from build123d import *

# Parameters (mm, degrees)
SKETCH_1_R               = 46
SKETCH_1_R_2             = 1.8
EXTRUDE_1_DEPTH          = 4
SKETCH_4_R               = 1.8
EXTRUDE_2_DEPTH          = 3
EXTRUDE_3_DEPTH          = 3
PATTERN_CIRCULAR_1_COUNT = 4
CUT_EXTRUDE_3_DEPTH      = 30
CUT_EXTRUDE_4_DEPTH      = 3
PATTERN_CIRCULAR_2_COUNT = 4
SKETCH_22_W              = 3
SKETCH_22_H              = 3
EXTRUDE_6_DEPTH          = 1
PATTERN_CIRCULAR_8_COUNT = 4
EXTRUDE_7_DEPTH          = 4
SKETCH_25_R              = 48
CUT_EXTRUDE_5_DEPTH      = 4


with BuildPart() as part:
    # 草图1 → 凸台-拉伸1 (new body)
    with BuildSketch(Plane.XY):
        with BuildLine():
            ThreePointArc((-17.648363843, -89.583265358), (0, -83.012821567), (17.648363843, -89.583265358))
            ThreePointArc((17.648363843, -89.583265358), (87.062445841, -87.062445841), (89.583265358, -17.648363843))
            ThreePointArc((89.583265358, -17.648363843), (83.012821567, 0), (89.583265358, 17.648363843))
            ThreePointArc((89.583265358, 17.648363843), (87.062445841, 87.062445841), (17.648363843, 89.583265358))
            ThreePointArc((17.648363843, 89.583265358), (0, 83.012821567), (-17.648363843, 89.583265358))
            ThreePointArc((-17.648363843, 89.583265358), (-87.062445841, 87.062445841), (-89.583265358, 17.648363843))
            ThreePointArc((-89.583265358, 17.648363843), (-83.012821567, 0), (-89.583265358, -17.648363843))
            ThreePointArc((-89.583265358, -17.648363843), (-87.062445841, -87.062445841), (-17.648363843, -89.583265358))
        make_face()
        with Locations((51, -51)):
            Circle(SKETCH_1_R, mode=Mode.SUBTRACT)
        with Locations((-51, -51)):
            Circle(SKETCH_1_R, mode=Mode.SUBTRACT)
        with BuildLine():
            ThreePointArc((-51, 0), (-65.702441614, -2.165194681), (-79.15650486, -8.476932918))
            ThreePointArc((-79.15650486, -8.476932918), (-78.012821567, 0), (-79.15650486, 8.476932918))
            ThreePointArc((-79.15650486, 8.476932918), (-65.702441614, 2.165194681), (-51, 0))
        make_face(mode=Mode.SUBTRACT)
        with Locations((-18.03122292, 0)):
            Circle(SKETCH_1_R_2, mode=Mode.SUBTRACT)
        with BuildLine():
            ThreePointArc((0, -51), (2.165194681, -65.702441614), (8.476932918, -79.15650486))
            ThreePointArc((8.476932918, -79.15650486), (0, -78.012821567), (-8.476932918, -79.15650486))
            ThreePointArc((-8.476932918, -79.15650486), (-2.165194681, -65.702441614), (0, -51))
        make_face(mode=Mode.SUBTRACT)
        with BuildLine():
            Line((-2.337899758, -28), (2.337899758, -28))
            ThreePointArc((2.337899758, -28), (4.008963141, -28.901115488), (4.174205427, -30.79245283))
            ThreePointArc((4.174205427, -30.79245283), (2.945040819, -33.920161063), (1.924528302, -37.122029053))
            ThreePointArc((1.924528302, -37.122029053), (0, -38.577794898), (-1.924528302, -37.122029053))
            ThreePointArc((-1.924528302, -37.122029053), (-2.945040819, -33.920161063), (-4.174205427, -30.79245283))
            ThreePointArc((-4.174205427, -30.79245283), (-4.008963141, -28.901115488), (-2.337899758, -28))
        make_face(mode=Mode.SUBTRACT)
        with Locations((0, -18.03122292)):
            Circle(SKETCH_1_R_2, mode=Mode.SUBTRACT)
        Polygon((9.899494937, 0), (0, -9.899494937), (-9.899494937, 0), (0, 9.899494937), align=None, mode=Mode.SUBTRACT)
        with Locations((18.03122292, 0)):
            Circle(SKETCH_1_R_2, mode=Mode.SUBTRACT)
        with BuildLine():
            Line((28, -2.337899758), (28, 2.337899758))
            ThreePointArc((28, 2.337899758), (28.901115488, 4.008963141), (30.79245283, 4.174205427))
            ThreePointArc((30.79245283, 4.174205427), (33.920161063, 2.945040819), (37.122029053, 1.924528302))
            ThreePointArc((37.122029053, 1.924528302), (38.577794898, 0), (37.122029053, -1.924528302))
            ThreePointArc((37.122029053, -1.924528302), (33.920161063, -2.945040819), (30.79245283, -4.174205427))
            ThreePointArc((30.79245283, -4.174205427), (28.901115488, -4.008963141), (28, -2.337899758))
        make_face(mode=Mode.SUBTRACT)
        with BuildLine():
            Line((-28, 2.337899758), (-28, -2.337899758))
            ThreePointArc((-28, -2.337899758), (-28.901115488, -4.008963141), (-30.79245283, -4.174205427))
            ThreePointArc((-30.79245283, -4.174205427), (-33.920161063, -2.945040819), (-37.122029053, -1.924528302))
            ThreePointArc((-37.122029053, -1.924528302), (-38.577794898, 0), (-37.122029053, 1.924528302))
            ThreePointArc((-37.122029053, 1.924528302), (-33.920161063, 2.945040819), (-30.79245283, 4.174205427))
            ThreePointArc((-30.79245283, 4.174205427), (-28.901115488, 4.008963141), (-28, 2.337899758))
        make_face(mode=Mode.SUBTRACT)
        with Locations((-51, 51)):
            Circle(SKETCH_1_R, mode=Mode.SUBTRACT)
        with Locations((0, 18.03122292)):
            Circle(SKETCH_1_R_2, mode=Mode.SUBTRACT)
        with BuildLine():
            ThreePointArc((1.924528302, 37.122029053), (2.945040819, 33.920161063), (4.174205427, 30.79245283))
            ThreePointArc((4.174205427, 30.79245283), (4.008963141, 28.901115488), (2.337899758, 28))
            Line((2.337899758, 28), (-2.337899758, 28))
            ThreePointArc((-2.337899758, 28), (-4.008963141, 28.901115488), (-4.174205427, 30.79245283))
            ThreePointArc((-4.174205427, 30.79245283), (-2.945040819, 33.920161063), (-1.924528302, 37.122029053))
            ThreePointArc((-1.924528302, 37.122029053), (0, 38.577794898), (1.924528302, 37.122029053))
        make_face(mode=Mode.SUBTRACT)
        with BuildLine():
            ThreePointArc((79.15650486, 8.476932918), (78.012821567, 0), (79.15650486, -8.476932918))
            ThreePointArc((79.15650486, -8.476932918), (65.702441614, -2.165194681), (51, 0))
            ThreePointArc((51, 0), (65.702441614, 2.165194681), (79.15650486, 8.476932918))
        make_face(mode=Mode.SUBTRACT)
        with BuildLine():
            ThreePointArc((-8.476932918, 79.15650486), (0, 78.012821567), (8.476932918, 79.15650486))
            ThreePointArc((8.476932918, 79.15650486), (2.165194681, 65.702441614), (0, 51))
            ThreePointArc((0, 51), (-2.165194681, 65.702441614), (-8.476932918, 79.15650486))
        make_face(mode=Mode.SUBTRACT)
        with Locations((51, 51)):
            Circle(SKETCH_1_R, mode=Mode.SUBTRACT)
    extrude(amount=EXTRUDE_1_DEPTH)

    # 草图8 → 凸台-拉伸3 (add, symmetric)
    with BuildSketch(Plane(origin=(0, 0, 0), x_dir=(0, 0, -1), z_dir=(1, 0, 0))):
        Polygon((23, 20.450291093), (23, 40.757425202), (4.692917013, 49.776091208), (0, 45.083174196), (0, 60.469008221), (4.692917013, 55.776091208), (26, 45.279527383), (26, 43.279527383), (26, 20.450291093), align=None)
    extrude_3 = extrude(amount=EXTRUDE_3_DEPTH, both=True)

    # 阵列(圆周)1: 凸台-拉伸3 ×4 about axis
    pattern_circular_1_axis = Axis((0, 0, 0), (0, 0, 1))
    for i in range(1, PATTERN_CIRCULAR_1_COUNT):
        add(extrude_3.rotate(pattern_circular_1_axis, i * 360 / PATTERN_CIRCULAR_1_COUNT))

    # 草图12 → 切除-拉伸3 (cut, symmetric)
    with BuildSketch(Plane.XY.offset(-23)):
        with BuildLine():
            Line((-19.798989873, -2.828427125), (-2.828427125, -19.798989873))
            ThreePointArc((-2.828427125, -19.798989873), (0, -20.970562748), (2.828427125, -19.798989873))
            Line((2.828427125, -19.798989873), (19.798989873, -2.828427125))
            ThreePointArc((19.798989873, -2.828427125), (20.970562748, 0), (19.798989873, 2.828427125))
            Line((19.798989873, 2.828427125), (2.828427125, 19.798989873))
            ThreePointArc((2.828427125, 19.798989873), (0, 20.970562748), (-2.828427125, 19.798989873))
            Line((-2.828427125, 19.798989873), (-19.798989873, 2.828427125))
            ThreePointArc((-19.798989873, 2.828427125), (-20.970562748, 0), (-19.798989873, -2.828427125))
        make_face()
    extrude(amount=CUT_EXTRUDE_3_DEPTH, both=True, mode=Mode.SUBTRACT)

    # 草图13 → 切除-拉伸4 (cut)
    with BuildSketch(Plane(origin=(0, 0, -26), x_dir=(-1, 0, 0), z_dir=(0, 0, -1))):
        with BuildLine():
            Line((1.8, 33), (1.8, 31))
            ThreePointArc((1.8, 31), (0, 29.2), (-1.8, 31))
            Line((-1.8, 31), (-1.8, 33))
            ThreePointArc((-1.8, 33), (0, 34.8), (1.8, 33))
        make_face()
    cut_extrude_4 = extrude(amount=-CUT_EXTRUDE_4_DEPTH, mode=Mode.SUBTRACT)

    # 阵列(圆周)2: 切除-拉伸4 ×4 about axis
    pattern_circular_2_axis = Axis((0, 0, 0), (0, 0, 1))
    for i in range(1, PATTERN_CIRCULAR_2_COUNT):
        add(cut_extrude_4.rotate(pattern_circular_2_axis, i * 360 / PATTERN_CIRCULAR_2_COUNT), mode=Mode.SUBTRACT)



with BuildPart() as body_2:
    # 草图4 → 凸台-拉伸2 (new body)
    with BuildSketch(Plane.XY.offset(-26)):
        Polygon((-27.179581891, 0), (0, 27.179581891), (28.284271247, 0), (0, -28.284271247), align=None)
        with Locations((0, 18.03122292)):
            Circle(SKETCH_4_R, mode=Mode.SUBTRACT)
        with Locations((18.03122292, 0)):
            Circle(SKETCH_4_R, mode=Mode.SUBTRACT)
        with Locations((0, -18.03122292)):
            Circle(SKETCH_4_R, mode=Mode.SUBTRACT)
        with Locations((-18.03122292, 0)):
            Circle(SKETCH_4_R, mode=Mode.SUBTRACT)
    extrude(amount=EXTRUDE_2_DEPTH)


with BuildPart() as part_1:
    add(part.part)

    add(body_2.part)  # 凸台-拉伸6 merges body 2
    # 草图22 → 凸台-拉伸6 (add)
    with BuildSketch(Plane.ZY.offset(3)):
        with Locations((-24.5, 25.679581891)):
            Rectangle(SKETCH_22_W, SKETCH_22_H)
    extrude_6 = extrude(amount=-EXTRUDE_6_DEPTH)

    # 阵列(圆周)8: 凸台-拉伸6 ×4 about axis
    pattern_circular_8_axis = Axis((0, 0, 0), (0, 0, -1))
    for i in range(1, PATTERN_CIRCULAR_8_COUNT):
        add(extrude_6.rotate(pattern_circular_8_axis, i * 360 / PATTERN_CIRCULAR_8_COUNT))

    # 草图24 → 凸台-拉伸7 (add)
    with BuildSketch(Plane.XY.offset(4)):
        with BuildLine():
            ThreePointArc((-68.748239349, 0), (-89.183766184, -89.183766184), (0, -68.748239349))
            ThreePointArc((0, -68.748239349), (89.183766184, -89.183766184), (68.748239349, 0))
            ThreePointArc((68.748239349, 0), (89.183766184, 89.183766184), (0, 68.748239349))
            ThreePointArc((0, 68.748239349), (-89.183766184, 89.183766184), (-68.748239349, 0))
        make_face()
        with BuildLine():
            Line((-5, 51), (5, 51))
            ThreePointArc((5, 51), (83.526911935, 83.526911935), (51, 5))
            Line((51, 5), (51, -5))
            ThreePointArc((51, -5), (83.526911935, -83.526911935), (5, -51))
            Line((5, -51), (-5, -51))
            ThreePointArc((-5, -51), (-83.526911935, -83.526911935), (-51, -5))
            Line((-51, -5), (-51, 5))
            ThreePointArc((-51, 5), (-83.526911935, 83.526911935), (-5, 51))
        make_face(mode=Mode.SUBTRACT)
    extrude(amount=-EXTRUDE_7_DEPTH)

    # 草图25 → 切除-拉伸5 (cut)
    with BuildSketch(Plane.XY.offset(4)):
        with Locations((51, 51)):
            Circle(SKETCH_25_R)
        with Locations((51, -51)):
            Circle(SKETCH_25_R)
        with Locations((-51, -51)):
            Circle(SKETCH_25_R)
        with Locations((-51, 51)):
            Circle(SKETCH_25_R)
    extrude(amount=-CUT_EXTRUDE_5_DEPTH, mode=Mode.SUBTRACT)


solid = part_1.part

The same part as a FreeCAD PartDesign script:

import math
import FreeCAD as App
import Part
import Sketcher
from FreeCAD import Vector
Q = App.Units.Quantity


def add_polygon(sketch, points):
    """Adds a closed chain of lines whose ends are joined by coincident constraints."""
    first, n = sketch.GeometryCount, len(points)
    for a, b in zip(points, points[1:] + points[:1]):
        sketch.addGeometry(Part.LineSegment(App.Vector(*a, 0), App.Vector(*b, 0)), False)
    for i in range(n):
        sketch.addConstraint(Sketcher.Constraint("Coincident", first + i, 2, first + (i + 1) % n, 1))

doc = App.newDocument("Part")
params = doc.addObject("Spreadsheet::Sheet", "Params")
for row, (alias, value) in enumerate([
    ("sketch1_diameter", "92 mm"),
    ("sketch1_radius", "51 mm"),
    ("sketch1_radius2", "2 mm"),
    ("sketch1_diameter2", "3.6 mm"),
    ("sketch1_length", "14 mm"),
    ("pad1_length", "4 mm"),
    ("sketch2_height", "3 mm"),
    ("pad2_length", "6 mm"),
    ("sketch3_radius", "4 mm"),
    ("sketch3_length", "24 mm"),
    ("pocket1_length", "60 mm"),
    ("sketch4_radius", "1.8 mm"),
    ("sketch4_height", "2 mm"),
    ("pocket2_length", "3 mm"),
    ("sketch5_diameter", "3.6 mm"),
    ("sketch5_length", "40 mm"),
    ("pad3_length", "3 mm"),
    ("sketch6_width", "3 mm"),
    ("pad4_length", "1 mm"),
    ("sketch7_radius", "54 mm"),
    ("sketch7_radius2", "46 mm"),
    ("sketch7_width", "10 mm"),
    ("pad5_length", "4 mm"),
    ("sketch8_diameter", "96 mm"),
    ("pocket3_length", "4 mm"),
], start=1):
    params.set(f"A{row}", alias)
    params.set(f"B{row}", "=" + value)
    params.setAlias(f"B{row}", alias)

body = doc.addObject("PartDesign::Body", "Body")

# Sketch on XY plane
sketch1 = body.newObject("Sketcher::SketchObject", "Sketch")
sketch1.AttachmentSupport = (doc.getObject("XY_Plane"), [""])
sketch1.MapMode = "FlatFace"
sketch1.addGeometry(Part.ArcOfCircle(Part.Circle(Vector(0, -110, 0), Vector(0, 0, 1), 27), math.radians(49), math.radians(131)), False)  # 0
sketch1.addGeometry(Part.ArcOfCircle(Part.Circle(Vector(51, -51, 0), Vector(0, 0, 1), 51), math.radians(-131), math.radians(41)), False)  # 1
sketch1.addGeometry(Part.ArcOfCircle(Part.Circle(Vector(110, 0, 0), Vector(0, 0, 1), 27), math.radians(139), math.radians(221)), False)  # 2
sketch1.addGeometry(Part.ArcOfCircle(Part.Circle(Vector(51, 51, 0), Vector(0, 0, 1), 51), math.radians(-41), math.radians(131)), False)  # 3
sketch1.addGeometry(Part.ArcOfCircle(Part.Circle(Vector(0, 110, 0), Vector(0, 0, 1), 27), math.radians(-131), math.radians(-49)), False)  # 4
sketch1.addGeometry(Part.ArcOfCircle(Part.Circle(Vector(-51, 51, 0), Vector(0, 0, 1), 51), math.radians(49), math.radians(221)), False)  # 5
sketch1.addGeometry(Part.ArcOfCircle(Part.Circle(Vector(-110, 0, 0), Vector(0, 0, 1), 27), math.radians(-41), math.radians(41)), False)  # 6
sketch1.addGeometry(Part.ArcOfCircle(Part.Circle(Vector(-51, -51, 0), Vector(0, 0, 1), 51), math.radians(139), math.radians(311)), False)  # 7
sketch1.addGeometry(Part.Circle(Vector(-51, -51, 0), Vector(0, 0, 1), 46), False)  # 8
sketch1.addGeometry(Part.ArcOfCircle(Part.Circle(Vector(-51, -51, 0), Vector(0, 0, 1), 51), math.radians(-34), math.radians(0)), False)  # 9
sketch1.addGeometry(Part.ArcOfCircle(Part.Circle(Vector(51, -51, 0), Vector(0, 0, 1), 51), math.radians(-180), math.radians(-146)), False)  # 10
sketch1.addGeometry(Part.ArcOfCircle(Part.Circle(Vector(0, -110, 0), Vector(0, 0, 1), 32), math.radians(75), math.radians(105)), False)  # 11
sketch1.addGeometry(Part.Circle(Vector(51, -51, 0), Vector(0, 0, 1), 46), False)  # 12
sketch1.addGeometry(Part.ArcOfCircle(Part.Circle(Vector(-2.3, -30, 0), Vector(0, 0, 1), 2), math.radians(90), math.radians(203)), False)  # 13
sketch1.addGeometry(Part.LineSegment(Vector(-2.3, -28, 0), Vector(2.3, -28, 0)), False)  # 14
sketch1.addGeometry(Part.ArcOfCircle(Part.Circle(Vector(2.3, -30, 0), Vector(0, 0, 1), 2), math.radians(-23), math.radians(90)), False)  # 15
sketch1.addGeometry(Part.ArcOfCircle(Part.Circle(Vector(51, -51, 0), Vector(0, 0, 1), 51), math.radians(156.66), math.radians(164.21)), False)  # 16
sketch1.addGeometry(Part.ArcOfCircle(Part.Circle(Vector(0, -36.6, 0), Vector(0, 0, 1), 2), math.radians(-164), math.radians(-16)), False)  # 17
sketch1.addGeometry(Part.ArcOfCircle(Part.Circle(Vector(-51, -51, 0), Vector(0, 0, 1), 51), math.radians(15.79), math.radians(23.34)), False)  # 18
sketch1.addGeometry(Part.Circle(Vector(0, -18, 0), Vector(0, 0, 1), 1.8), False)  # 19
sketch1.addGeometry(Part.ArcOfCircle(Part.Circle(Vector(-51, 51, 0), Vector(0, 0, 1), 51), math.radians(-124), math.radians(-90)), False)  # 20
sketch1.addGeometry(Part.ArcOfCircle(Part.Circle(Vector(-51, -51, 0), Vector(0, 0, 1), 51), math.radians(90), math.radians(124)), False)  # 21
sketch1.addGeometry(Part.ArcOfCircle(Part.Circle(Vector(-110, 0, 0), Vector(0, 0, 1), 32), math.radians(-15), math.radians(15)), False)  # 22
sketch1.addGeometry(Part.ArcOfCircle(Part.Circle(Vector(-30, 2.3, 0), Vector(0, 0, 1), 2), math.radians(0), math.radians(113)), False)  # 23
sketch1.addGeometry(Part.LineSegment(Vector(-28, 2.3, 0), Vector(-28, -2.3, 0)), False)  # 24
sketch1.addGeometry(Part.ArcOfCircle(Part.Circle(Vector(-30, -2.3, 0), Vector(0, 0, 1), 2), math.radians(-113), math.radians(0)), False)  # 25
sketch1.addGeometry(Part.ArcOfCircle(Part.Circle(Vector(-51, -51, 0), Vector(0, 0, 1), 51), math.radians(66.66), math.radians(74.21)), False)  # 26
sketch1.addGeometry(Part.ArcOfCircle(Part.Circle(Vector(-36.6, 0, 0), Vector(0, 0, 1), 2), math.radians(106), math.radians(254)), False)  # 27
sketch1.addGeometry(Part.ArcOfCircle(Part.Circle(Vector(-51, 51, 0), Vector(0, 0, 1), 51), math.radians(-74.21), math.radians(-66.66)), False)  # 28
sketch1.addGeometry(Part.Circle(Vector(-18, 0, 0), Vector(0, 0, 1), 1.8), False)  # 29
sketch1.addGeometry(Part.Circle(Vector(-51, 51, 0), Vector(0, 0, 1), 46), False)  # 30
add_polygon(sketch1, [(0, 9.9), (9.9, 0), (0, -9.9), (-9.9, 0)])  # lines 31-34
sketch1.addGeometry(Part.Circle(Vector(18, 0, 0), Vector(0, 0, 1), 1.8), False)  # 35
sketch1.addGeometry(Part.Circle(Vector(0, 18, 0), Vector(0, 0, 1), 1.8), False)  # 36
sketch1.addGeometry(Part.ArcOfCircle(Part.Circle(Vector(30, -2.3, 0), Vector(0, 0, 1), 2), math.radians(180), math.radians(293)), False)  # 37
sketch1.addGeometry(Part.LineSegment(Vector(28, -2.3, 0), Vector(28, 2.3, 0)), False)  # 38
sketch1.addGeometry(Part.ArcOfCircle(Part.Circle(Vector(30, 2.3, 0), Vector(0, 0, 1), 2), math.radians(67), math.radians(180)), False)  # 39
sketch1.addGeometry(Part.ArcOfCircle(Part.Circle(Vector(51, 51, 0), Vector(0, 0, 1), 51), math.radians(-113.34), math.radians(-105.79)), False)  # 40
sketch1.addGeometry(Part.ArcOfCircle(Part.Circle(Vector(36.6, 0, 0), Vector(0, 0, 1), 2), math.radians(-74), math.radians(74)), False)  # 41
sketch1.addGeometry(Part.ArcOfCircle(Part.Circle(Vector(51, -51, 0), Vector(0, 0, 1), 51), math.radians(105.79), math.radians(113.34)), False)  # 42
sketch1.addGeometry(Part.ArcOfCircle(Part.Circle(Vector(0, 36.6, 0), Vector(0, 0, 1), 2), math.radians(16), math.radians(164)), False)  # 43
sketch1.addGeometry(Part.ArcOfCircle(Part.Circle(Vector(51, 51, 0), Vector(0, 0, 1), 51), math.radians(-164.21), math.radians(-156.66)), False)  # 44
sketch1.addGeometry(Part.ArcOfCircle(Part.Circle(Vector(2.3, 30, 0), Vector(0, 0, 1), 2), math.radians(-90), math.radians(23)), False)  # 45
sketch1.addGeometry(Part.LineSegment(Vector(2.3, 28, 0), Vector(-2.3, 28, 0)), False)  # 46
sketch1.addGeometry(Part.ArcOfCircle(Part.Circle(Vector(-2.3, 30, 0), Vector(0, 0, 1), 2), math.radians(157), math.radians(270)), False)  # 47
sketch1.addGeometry(Part.ArcOfCircle(Part.Circle(Vector(-51, 51, 0), Vector(0, 0, 1), 51), math.radians(-23.34), math.radians(-15.79)), False)  # 48
sketch1.addGeometry(Part.ArcOfCircle(Part.Circle(Vector(51, 51, 0), Vector(0, 0, 1), 51), math.radians(-90), math.radians(-56)), False)  # 49
sketch1.addGeometry(Part.ArcOfCircle(Part.Circle(Vector(110, 0, 0), Vector(0, 0, 1), 32), math.radians(165), math.radians(195)), False)  # 50
sketch1.addGeometry(Part.ArcOfCircle(Part.Circle(Vector(51, -51, 0), Vector(0, 0, 1), 51), math.radians(56), math.radians(90)), False)  # 51
sketch1.addGeometry(Part.ArcOfCircle(Part.Circle(Vector(-51, 51, 0), Vector(0, 0, 1), 51), math.radians(0), math.radians(34)), False)  # 52
sketch1.addGeometry(Part.ArcOfCircle(Part.Circle(Vector(0, 110, 0), Vector(0, 0, 1), 32), math.radians(-105), math.radians(-75)), False)  # 53
sketch1.addGeometry(Part.ArcOfCircle(Part.Circle(Vector(51, 51, 0), Vector(0, 0, 1), 51), math.radians(146), math.radians(180)), False)  # 54
sketch1.addGeometry(Part.Circle(Vector(51, 51, 0), Vector(0, 0, 1), 46), False)  # 55
sketch1.addConstraint([
    Sketcher.Constraint("Tangent", 0, 1, 1, 1),
    Sketcher.Constraint("Tangent", 1, 2, 2, 2),
    Sketcher.Constraint("Tangent", 2, 1, 3, 1),
    Sketcher.Constraint("Tangent", 3, 2, 4, 2),
    Sketcher.Constraint("Tangent", 4, 1, 5, 1),
    Sketcher.Constraint("Tangent", 5, 2, 6, 2),
    Sketcher.Constraint("Tangent", 6, 1, 7, 1),
    Sketcher.Constraint("Tangent", 7, 2, 0, 2),
    Sketcher.Constraint("Tangent", 9, 2, 10, 1),
    Sketcher.Constraint("Coincident", 10, 2, 11, 1),
    Sketcher.Constraint("Coincident", 11, 2, 9, 1),
    Sketcher.Constraint("Tangent", 13, 1, 14, 1),
    Sketcher.Constraint("Tangent", 14, 2, 15, 2),
    Sketcher.Constraint("Tangent", 15, 1, 16, 1),
    Sketcher.Constraint("Tangent", 16, 2, 17, 2),
    Sketcher.Constraint("Tangent", 17, 1, 18, 1),
    Sketcher.Constraint("Tangent", 18, 2, 13, 2),
    Sketcher.Constraint("Tangent", 20, 2, 21, 1),
    Sketcher.Constraint("Coincident", 21, 2, 22, 1),
    Sketcher.Constraint("Coincident", 22, 2, 20, 1),
    Sketcher.Constraint("Tangent", 23, 1, 24, 1),
    Sketcher.Constraint("Tangent", 24, 2, 25, 2),
    Sketcher.Constraint("Tangent", 25, 1, 26, 1),
    Sketcher.Constraint("Tangent", 26, 2, 27, 2),
    Sketcher.Constraint("Tangent", 27, 1, 28, 1),
    Sketcher.Constraint("Tangent", 28, 2, 23, 2),
    Sketcher.Constraint("Tangent", 37, 1, 38, 1),
    Sketcher.Constraint("Tangent", 38, 2, 39, 2),
    Sketcher.Constraint("Tangent", 39, 1, 40, 1),
    Sketcher.Constraint("Tangent", 40, 2, 41, 2),
    Sketcher.Constraint("Tangent", 41, 1, 42, 1),
    Sketcher.Constraint("Tangent", 42, 2, 37, 2),
    Sketcher.Constraint("Tangent", 43, 1, 44, 1),
    Sketcher.Constraint("Tangent", 44, 2, 45, 2),
    Sketcher.Constraint("Tangent", 45, 1, 46, 1),
    Sketcher.Constraint("Tangent", 46, 2, 47, 2),
    Sketcher.Constraint("Tangent", 47, 1, 48, 1),
    Sketcher.Constraint("Tangent", 48, 2, 43, 2),
    Sketcher.Constraint("Coincident", 49, 2, 50, 1),
    Sketcher.Constraint("Coincident", 50, 2, 51, 1),
    Sketcher.Constraint("Tangent", 51, 2, 49, 1),
    Sketcher.Constraint("Coincident", 52, 2, 53, 1),
    Sketcher.Constraint("Coincident", 53, 2, 54, 1),
    Sketcher.Constraint("Tangent", 54, 2, 52, 1),
    Sketcher.Constraint("Horizontal", 14),
    Sketcher.Constraint("Vertical", 24),
    Sketcher.Constraint("Vertical", 38),
    Sketcher.Constraint("Horizontal", 46),
    Sketcher.Constraint("Coincident", 8, 3, 7, 3),
    Sketcher.Constraint("Coincident", 9, 3, 7, 3),
    Sketcher.Constraint("Coincident", 10, 3, 1, 3),
    Sketcher.Constraint("Coincident", 11, 3, 0, 3),
    Sketcher.Constraint("Coincident", 12, 3, 1, 3),
    Sketcher.Constraint("Coincident", 16, 3, 1, 3),
    Sketcher.Constraint("Coincident", 18, 3, 7, 3),
    Sketcher.Constraint("Coincident", 20, 3, 5, 3),
    Sketcher.Constraint("Coincident", 21, 3, 7, 3),
    Sketcher.Constraint("Coincident", 22, 3, 6, 3),
    Sketcher.Constraint("Coincident", 26, 3, 7, 3),
    Sketcher.Constraint("Coincident", 28, 3, 5, 3),
    Sketcher.Constraint("Coincident", 30, 3, 5, 3),
    Sketcher.Constraint("Coincident", 40, 3, 3, 3),
    Sketcher.Constraint("Coincident", 42, 3, 1, 3),
    Sketcher.Constraint("Coincident", 44, 3, 3, 3),
    Sketcher.Constraint("Coincident", 48, 3, 5, 3),
    Sketcher.Constraint("Coincident", 49, 3, 3, 3),
    Sketcher.Constraint("Coincident", 50, 3, 2, 3),
    Sketcher.Constraint("Coincident", 51, 3, 1, 3),
    Sketcher.Constraint("Coincident", 52, 3, 5, 3),
    Sketcher.Constraint("Coincident", 53, 3, 4, 3),
    Sketcher.Constraint("Coincident", 54, 3, 3, 3),
    Sketcher.Constraint("Coincident", 55, 3, 3, 3),
    Sketcher.Constraint("Equal", 0, 2),
    Sketcher.Constraint("Equal", 1, 3),
    Sketcher.Constraint("Equal", 2, 4),
    Sketcher.Constraint("Equal", 3, 5),
    Sketcher.Constraint("Equal", 4, 6),
    Sketcher.Constraint("Equal", 5, 7),
    Sketcher.Constraint("Equal", 7, 9),
    Sketcher.Constraint("Equal", 9, 10),
    Sketcher.Constraint("Equal", 8, 12),
    Sketcher.Constraint("Equal", 13, 15),
    Sketcher.Constraint("Equal", 10, 16),
    Sketcher.Constraint("Equal", 15, 17),
    Sketcher.Constraint("Equal", 16, 18),
    Sketcher.Constraint("Equal", 18, 20),
    Sketcher.Constraint("Equal", 20, 21),
    Sketcher.Constraint("Equal", 11, 22),
    Sketcher.Constraint("Equal", 17, 23),
    Sketcher.Constraint("Equal", 23, 25),
    Sketcher.Constraint("Equal", 21, 26),
    Sketcher.Constraint("Equal", 25, 27),
    Sketcher.Constraint("Equal", 26, 28),
    Sketcher.Constraint("Equal", 19, 29),
    Sketcher.Constraint("Equal", 12, 30),
    Sketcher.Constraint("Equal", 29, 35),
    Sketcher.Constraint("Equal", 35, 36),
    Sketcher.Constraint("Equal", 27, 37),
    Sketcher.Constraint("Equal", 37, 39),
    Sketcher.Constraint("Equal", 28, 40),
    Sketcher.Constraint("Equal", 39, 41),
    Sketcher.Constraint("Equal", 40, 42),
    Sketcher.Constraint("Equal", 41, 43),
    Sketcher.Constraint("Equal", 42, 44),
    Sketcher.Constraint("Equal", 43, 45),
    Sketcher.Constraint("Equal", 45, 47),
    Sketcher.Constraint("Equal", 44, 48),
    Sketcher.Constraint("Equal", 48, 49),
    Sketcher.Constraint("Equal", 22, 50),
    Sketcher.Constraint("Equal", 49, 51),
    Sketcher.Constraint("Equal", 51, 52),
    Sketcher.Constraint("Equal", 50, 53),
    Sketcher.Constraint("Equal", 52, 54),
    Sketcher.Constraint("Equal", 30, 55),
    Sketcher.Constraint("Symmetric", 0, 3, 4, 3, -1, 1),
    Sketcher.Constraint("Symmetric", 29, 3, 35, 3, -1, 1),
    Sketcher.Constraint("Symmetric", 19, 3, 36, 3, -1, 1),
    Sketcher.Constraint("Symmetric", 31, 2, 33, 2, -1, 1),
    Sketcher.Constraint("Symmetric", 32, 2, 34, 2, -1, 1),
    Sketcher.Constraint("Symmetric", 3, 3, 5, 3, -2),
    Sketcher.Constraint("PointOnObject", 19, 3, -2),
    Sketcher.Constraint("PointOnObject", 29, 3, -1),
    Sketcher.Constraint("PointOnObject", 31, 2, -1),
    Sketcher.Constraint("PointOnObject", 32, 2, -2),
    Sketcher.Constraint("Perpendicular", 31, 32),
    Sketcher.Constraint("Horizontal", 25, 3, 37, 3),
    Sketcher.Constraint("Vertical", 15, 3, 45, 3),
    Sketcher.Constraint("Equal", 46, 24),
    Sketcher.Constraint("Diameter", 8, Q("92 mm")),
    Sketcher.Constraint("Radius", 1, Q("51 mm")),
    Sketcher.Constraint("Radius", 13, Q("2 mm")),
    Sketcher.Constraint("Diameter", 19, Q("3.6 mm")),
    Sketcher.Constraint("Distance", 31, Q("14 mm")),
    Sketcher.Constraint("DistanceY", 0, 3, -1, 1, Q("110 mm")),
    Sketcher.Constraint("DistanceY", 13, 3, -1, 1, Q("30 mm")),
    Sketcher.Constraint("Radius", 11, Q("31.987178 mm")),
    Sketcher.Constraint("DistanceY", 19, 3, -1, 1, Q("18.031223 mm")),
    Sketcher.Constraint("DistanceX", 29, 3, -1, 1, Q("18.031223 mm")),
])
sketch1.setExpression("Constraints[132]", "Params.sketch1_diameter")
sketch1.setExpression("Constraints[133]", "Params.sketch1_radius")
sketch1.setExpression("Constraints[134]", "Params.sketch1_radius2")
sketch1.setExpression("Constraints[135]", "Params.sketch1_diameter2")
sketch1.setExpression("Constraints[136]", "Params.sketch1_length")
pad1 = body.newObject("PartDesign::Pad", "Pad")
pad1.Profile = sketch1
pad1.setExpression("Length", "Params.pad1_length")

# Sketch on YZ plane
sketch2 = body.newObject("Sketcher::SketchObject", "Sketch001")
sketch2.AttachmentSupport = (doc.getObject("YZ_Plane"), [""])
sketch2.MapMode = "FlatFace"
add_polygon(sketch2, [(40.8, -23), (20.5, -23), (20.5, -26), (45.3, -26), (55.8, -4.7), (60.5, 0), (45.1, 0), (49.8, -4.7)])  # lines 0-7
sketch2.addConstraint([
    Sketcher.Constraint("Horizontal", 0),
    Sketcher.Constraint("Vertical", 1),
    Sketcher.Constraint("Horizontal", 2),
    Sketcher.Constraint("Horizontal", 5),
    Sketcher.Constraint("PointOnObject", 4, 2, -1),
    Sketcher.Constraint("Perpendicular", 4, 6),
    Sketcher.Constraint("Parallel", 3, 7),
    Sketcher.Constraint("Horizontal", 3, 2, 6, 2),
    Sketcher.Constraint("Equal", 4, 6),
    Sketcher.Constraint("DistanceY", 1, 2, 1, 1, Q("3 mm")),
    Sketcher.Constraint("DistanceY", 0, 2, -1, 1, Q("23 mm")),
    Sketcher.Constraint("DistanceX", 6, 2, 3, 2, Q("6 mm")),
    Sketcher.Constraint("DistanceX", 0, 2, 3, 2, Q("35.3258 mm")),
    Sketcher.Constraint("Distance", 7, Q("20.407979 mm")),
    Sketcher.Constraint("DistanceX", 0, 2, 0, 1, Q("20.307134 mm")),
    Sketcher.Constraint("DistanceX", -1, 1, 0, 2, Q("20.450291 mm")),
])
sketch2.setExpression("Constraints[17]", "Params.sketch2_height")
pad2 = body.newObject("PartDesign::Pad", "Pad001")
pad2.Profile = sketch2
pad2.setExpression("Length", "Params.pad2_length")
pad2.Midplane = True
doc.recompute()

polarpattern = body.newObject("PartDesign::PolarPattern", "PolarPattern")
polarpattern.Originals = [pad2]
polarpattern.Axis = (doc.getObject("Z_Axis"), [""])
polarpattern.Angle = 360
polarpattern.Occurrences = 4
body.Tip = polarpattern

# Sketch on XY plane
sketch3 = body.newObject("Sketcher::SketchObject", "Sketch002")
sketch3.AttachmentSupport = (doc.getObject("XY_Plane"), [""])
sketch3.MapMode = "FlatFace"
sketch3.AttachmentOffset = App.Placement(Vector(0, 0, -23), App.Rotation())
sketch3.addGeometry([
    Part.LineSegment(Vector(-19.8, -2.8, 0), Vector(-2.8, -19.8, 0)),  # 0
    Part.ArcOfCircle(Part.Circle(Vector(0, -17, 0), Vector(0, 0, 1), 4), math.radians(-135), math.radians(-45)),  # 1
    Part.LineSegment(Vector(2.8, -19.8, 0), Vector(19.8, -2.8, 0)),  # 2
    Part.ArcOfCircle(Part.Circle(Vector(17, 0, 0), Vector(0, 0, 1), 4), math.radians(-45), math.radians(45)),  # 3
    Part.LineSegment(Vector(19.8, 2.8, 0), Vector(2.8, 19.8, 0)),  # 4
    Part.ArcOfCircle(Part.Circle(Vector(0, 17, 0), Vector(0, 0, 1), 4), math.radians(45), math.radians(135)),  # 5
    Part.LineSegment(Vector(-2.8, 19.8, 0), Vector(-19.8, 2.8, 0)),  # 6
    Part.ArcOfCircle(Part.Circle(Vector(-17, 0, 0), Vector(0, 0, 1), 4), math.radians(135), math.radians(225)),  # 7
], False)
sketch3.addConstraint([
    Sketcher.Constraint("Tangent", 0, 2, 1, 1),
    Sketcher.Constraint("Tangent", 1, 2, 2, 1),
    Sketcher.Constraint("Tangent", 2, 2, 3, 1),
    Sketcher.Constraint("Tangent", 3, 2, 4, 1),
    Sketcher.Constraint("Tangent", 4, 2, 5, 1),
    Sketcher.Constraint("Tangent", 5, 2, 6, 1),
    Sketcher.Constraint("Tangent", 6, 2, 7, 1),
    Sketcher.Constraint("Tangent", 7, 2, 0, 1),
    Sketcher.Constraint("Equal", 1, 3),
    Sketcher.Constraint("Equal", 3, 5),
    Sketcher.Constraint("Equal", 5, 7),
    Sketcher.Constraint("Symmetric", 1, 3, 5, 3, -1, 1),
    Sketcher.Constraint("Symmetric", 3, 3, 7, 3, -1, 1),
    Sketcher.Constraint("Symmetric", 0, 2, 1, 2, -2),
    Sketcher.Constraint("Perpendicular", 0, 2),
    Sketcher.Constraint("Radius", 1, Q("4 mm")),
    Sketcher.Constraint("Distance", 0, Q("24 mm")),
])
sketch3.setExpression("Constraints[15]", "Params.sketch3_radius")
sketch3.setExpression("Constraints[16]", "Params.sketch3_length")
pocket1 = body.newObject("PartDesign::Pocket", "Pocket")
pocket1.Profile = sketch3
pocket1.setExpression("Length", "Params.pocket1_length")
pocket1.Midplane = True

# Sketch on XY plane
sketch4 = body.newObject("Sketcher::SketchObject", "Sketch003")
sketch4.AttachmentSupport = (doc.getObject("XY_Plane"), [""])
sketch4.MapMode = "FlatFace"
sketch4.AttachmentOffset = App.Placement(Vector(0, 0, -26), App.Rotation())
sketch4.addGeometry([
    Part.LineSegment(Vector(-1.8, 31, 0), Vector(-1.8, 33, 0)),
    Part.ArcOfCircle(Part.Circle(Vector(0, 33, 0), Vector(0, 0, 1), 1.8), math.radians(0), math.radians(180)),
    Part.LineSegment(Vector(1.8, 33, 0), Vector(1.8, 31, 0)),
    Part.ArcOfCircle(Part.Circle(Vector(0, 31, 0), Vector(0, 0, 1), 1.8), math.radians(180), math.radians(360)),
], False)
sketch4.addConstraint([
    Sketcher.Constraint("Tangent", 0, 2, 1, 2),
    Sketcher.Constraint("Tangent", 1, 1, 2, 1),
    Sketcher.Constraint("Tangent", 2, 2, 3, 2),
    Sketcher.Constraint("Tangent", 3, 1, 0, 1),
    Sketcher.Constraint("Vertical", 0),
    Sketcher.Constraint("Vertical", 2),
    Sketcher.Constraint("PointOnObject", 1, 3, -2),
    Sketcher.Constraint("Radius", 1, Q("1.8 mm")),
    Sketcher.Constraint("DistanceY", 0, 1, 0, 2, Q("2 mm")),
    Sketcher.Constraint("DistanceY", -1, 1, 1, 3, Q("33 mm")),
])
sketch4.setExpression("Constraints[7]", "Params.sketch4_radius")
sketch4.setExpression("Constraints[8]", "Params.sketch4_height")
pocket2 = body.newObject("PartDesign::Pocket", "Pocket001")
pocket2.Profile = sketch4
pocket2.setExpression("Length", "Params.pocket2_length")
pocket2.Reversed = True
doc.recompute()

polarpattern2 = body.newObject("PartDesign::PolarPattern", "PolarPattern001")
polarpattern2.Originals = [pocket2]
polarpattern2.Axis = (doc.getObject("Z_Axis"), [""])
polarpattern2.Angle = 360
polarpattern2.Occurrences = 4
body.Tip = polarpattern2
body2 = doc.addObject("PartDesign::Body", "Body001")

# Sketch on XY plane
sketch5 = body2.newObject("Sketcher::SketchObject", "Sketch004")
sketch5.AttachmentSupport = (doc.getObject("XY_Plane001"), [""])
sketch5.MapMode = "FlatFace"
sketch5.AttachmentOffset = App.Placement(Vector(0, 0, -26), App.Rotation())
add_polygon(sketch5, [(0, 27.2), (-27.2, 0), (0, -28.3), (28.3, 0)])  # lines 0-3
sketch5.addGeometry(Part.Circle(Vector(0, -18, 0), Vector(0, 0, 1), 1.8), False)  # 4
sketch5.addGeometry(Part.Circle(Vector(18, 0, 0), Vector(0, 0, 1), 1.8), False)  # 5
sketch5.addGeometry(Part.Circle(Vector(-18, 0, 0), Vector(0, 0, 1), 1.8), False)  # 6
sketch5.addGeometry(Part.Circle(Vector(0, 18, 0), Vector(0, 0, 1), 1.8), False)  # 7
sketch5.addConstraint([
    Sketcher.Constraint("Equal", 4, 5),
    Sketcher.Constraint("Equal", 5, 6),
    Sketcher.Constraint("Equal", 6, 7),
    Sketcher.Constraint("Symmetric", 5, 3, 6, 3, -1, 1),
    Sketcher.Constraint("Symmetric", 4, 3, 7, 3, -1, 1),
    Sketcher.Constraint("PointOnObject", 4, 3, -2),
    Sketcher.Constraint("PointOnObject", 5, 3, -1),
    Sketcher.Constraint("PointOnObject", 0, 2, -1),
    Sketcher.Constraint("PointOnObject", 1, 2, -2),
    Sketcher.Constraint("PointOnObject", 2, 2, -1),
    Sketcher.Constraint("PointOnObject", 3, 2, -2),
    Sketcher.Constraint("Parallel", 0, 2),
    Sketcher.Constraint("Equal", 1, 3),
    Sketcher.Constraint("Diameter", 4, Q("3.6 mm")),
    Sketcher.Constraint("Distance", 2, Q("40 mm")),
    Sketcher.Constraint("DistanceX", 0, 2, -1, 1, Q("27.179582 mm")),
    Sketcher.Constraint("DistanceX", 0, 2, 6, 3, Q("9.148359 mm")),
    Sketcher.Constraint("DistanceY", 1, 2, 4, 3, Q("10.253048 mm")),
])
sketch5.setExpression("Constraints[17]", "Params.sketch5_diameter")
sketch5.setExpression("Constraints[18]", "Params.sketch5_length")
pad3 = body2.newObject("PartDesign::Pad", "Pad002")
pad3.Profile = sketch5
pad3.setExpression("Length", "Params.pad3_length")
doc.recompute()

boolean = body.newObject("PartDesign::Boolean", "Boolean")
boolean.Type = "Fuse"
boolean.addObjects([body2])

# Sketch on YZ plane
sketch6 = body.newObject("Sketcher::SketchObject", "Sketch005")
sketch6.AttachmentSupport = (doc.getObject("YZ_Plane"), [""])
sketch6.MapMode = "FlatFace"
sketch6.AttachmentOffset = App.Placement(Vector(0, 0, -3), App.Rotation())
add_polygon(sketch6, [(27.2, -26), (24.2, -26), (24.2, -23), (27.2, -23)])  # lines 0-3
sketch6.addConstraint([
    Sketcher.Constraint("Horizontal", 0),
    Sketcher.Constraint("Vertical", 1),
    Sketcher.Constraint("Horizontal", 2),
    Sketcher.Constraint("Vertical", 3),
    Sketcher.Constraint("Equal", 2, 1),
    Sketcher.Constraint("DistanceX", 0, 2, 0, 1, Q("3 mm")),
    Sketcher.Constraint("DistanceY", 0, 2, -1, 1, Q("26 mm")),
    Sketcher.Constraint("DistanceX", -1, 1, 0, 2, Q("24.179582 mm")),
])
sketch6.setExpression("Constraints[9]", "Params.sketch6_width")
pad4 = body.newObject("PartDesign::Pad", "Pad003")
pad4.Profile = sketch6
pad4.setExpression("Length", "Params.pad4_length")
doc.recompute()

polarpattern3 = body.newObject("PartDesign::PolarPattern", "PolarPattern002")
polarpattern3.Originals = [pad4]
polarpattern3.Axis = (doc.getObject("Z_Axis"), [""])
polarpattern3.Angle = 360
polarpattern3.Occurrences = 4
body.Tip = polarpattern3

# Sketch on XY plane
sketch7 = body.newObject("Sketcher::SketchObject", "Sketch006")
sketch7.AttachmentSupport = (doc.getObject("XY_Plane"), [""])
sketch7.MapMode = "FlatFace"
sketch7.AttachmentOffset = App.Placement(Vector(0, 0, 4), App.Rotation())
sketch7.addGeometry([
    Part.ArcOfCircle(Part.Circle(Vector(-51, -51, 0), Vector(0, 0, 1), 54), math.radians(109), math.radians(341)),  # 0
    Part.ArcOfCircle(Part.Circle(Vector(51, -51, 0), Vector(0, 0, 1), 54), math.radians(-161), math.radians(71)),  # 1
    Part.ArcOfCircle(Part.Circle(Vector(51, 51, 0), Vector(0, 0, 1), 54), math.radians(-71), math.radians(161)),  # 2
    Part.ArcOfCircle(Part.Circle(Vector(-51, 51, 0), Vector(0, 0, 1), 54), math.radians(19), math.radians(251)),  # 3
    Part.ArcOfCircle(Part.Circle(Vector(-51, 51, 0), Vector(0, 0, 1), 46), math.radians(0), math.radians(270)),  # 4
    Part.LineSegment(Vector(-5, 51, 0), Vector(5, 51, 0)),  # 5
    Part.ArcOfCircle(Part.Circle(Vector(51, 51, 0), Vector(0, 0, 1), 46), math.radians(-90), math.radians(180)),  # 6
    Part.LineSegment(Vector(51, 5, 0), Vector(51, -5, 0)),  # 7
    Part.ArcOfCircle(Part.Circle(Vector(51, -51, 0), Vector(0, 0, 1), 46), math.radians(180), math.radians(450)),  # 8
    Part.LineSegment(Vector(5, -51, 0), Vector(-5, -51, 0)),  # 9
    Part.ArcOfCircle(Part.Circle(Vector(-51, -51, 0), Vector(0, 0, 1), 46), math.radians(90), math.radians(360)),  # 10
    Part.LineSegment(Vector(-51, -5, 0), Vector(-51, 5, 0)),  # 11
], False)
sketch7.addConstraint([
    Sketcher.Constraint("Coincident", 0, 2, 1, 1),
    Sketcher.Constraint("Coincident", 1, 2, 2, 1),
    Sketcher.Constraint("Coincident", 2, 2, 3, 1),
    Sketcher.Constraint("Coincident", 3, 2, 0, 1),
    Sketcher.Constraint("Coincident", 4, 1, 5, 1),
    Sketcher.Constraint("Coincident", 5, 2, 6, 2),
    Sketcher.Constraint("Coincident", 6, 1, 7, 1),
    Sketcher.Constraint("Coincident", 7, 2, 8, 2),
    Sketcher.Constraint("Coincident", 8, 1, 9, 1),
    Sketcher.Constraint("Coincident", 9, 2, 10, 2),
    Sketcher.Constraint("Coincident", 10, 1, 11, 1),
    Sketcher.Constraint("Coincident", 11, 2, 4, 2),
    Sketcher.Constraint("Horizontal", 5),
    Sketcher.Constraint("Vertical", 7),
    Sketcher.Constraint("Horizontal", 9),
    Sketcher.Constraint("Vertical", 11),
    Sketcher.Constraint("Coincident", 4, 3, 3, 3),
    Sketcher.Constraint("Coincident", 6, 3, 2, 3),
    Sketcher.Constraint("Coincident", 8, 3, 1, 3),
    Sketcher.Constraint("Coincident", 10, 3, 0, 3),
    Sketcher.Constraint("Equal", 0, 1),
    Sketcher.Constraint("Equal", 1, 2),
    Sketcher.Constraint("Equal", 2, 3),
    Sketcher.Constraint("Equal", 4, 6),
    Sketcher.Constraint("Equal", 6, 8),
    Sketcher.Constraint("Equal", 8, 10),
    Sketcher.Constraint("Symmetric", 0, 3, 2, 3, -1, 1),
    Sketcher.Constraint("Symmetric", 1, 3, 3, 3, -1, 1),
    Sketcher.Constraint("Symmetric", 0, 3, 1, 3, -2),
    Sketcher.Constraint("Horizontal", 6, 3, 4, 1),
    Sketcher.Constraint("Horizontal", 10, 3, 8, 1),
    Sketcher.Constraint("Vertical", 8, 3, 6, 1),
    Sketcher.Constraint("Vertical", 4, 3, 10, 1),
    Sketcher.Constraint("Equal", 9, 7),
    Sketcher.Constraint("Radius", 0, Q("54 mm")),
    Sketcher.Constraint("Radius", 4, Q("46 mm")),
    Sketcher.Constraint("DistanceX", 5, 1, 5, 2, Q("10 mm")),
])
sketch7.setExpression("Constraints[34]", "Params.sketch7_radius")
sketch7.setExpression("Constraints[35]", "Params.sketch7_radius2")
sketch7.setExpression("Constraints[36]", "Params.sketch7_width")
pad5 = body.newObject("PartDesign::Pad", "Pad004")
pad5.Profile = sketch7
pad5.setExpression("Length", "Params.pad5_length")
pad5.Reversed = True

# Sketch on XY plane
sketch8 = body.newObject("Sketcher::SketchObject", "Sketch007")
sketch8.AttachmentSupport = (doc.getObject("XY_Plane"), [""])
sketch8.MapMode = "FlatFace"
sketch8.AttachmentOffset = App.Placement(Vector(0, 0, 4), App.Rotation())
sketch8.addGeometry([
    Part.Circle(Vector(51, 51, 0), Vector(0, 0, 1), 48),
    Part.Circle(Vector(51, -51, 0), Vector(0, 0, 1), 48),
    Part.Circle(Vector(-51, -51, 0), Vector(0, 0, 1), 48),
    Part.Circle(Vector(-51, 51, 0), Vector(0, 0, 1), 48),
], False)
sketch8.addConstraint([
    Sketcher.Constraint("Equal", 0, 1),
    Sketcher.Constraint("Equal", 1, 2),
    Sketcher.Constraint("Equal", 2, 3),
    Sketcher.Constraint("Symmetric", 0, 3, 2, 3, -1, 1),
    Sketcher.Constraint("Symmetric", 1, 3, 3, 3, -1, 1),
    Sketcher.Constraint("Symmetric", 1, 3, 2, 3, -2),
    Sketcher.Constraint("Diameter", 0, Q("96 mm")),
    Sketcher.Constraint("DistanceX", -1, 1, 0, 3, Q("51 mm")),
    Sketcher.Constraint("DistanceY", -1, 1, 0, 3, Q("51 mm")),
])
sketch8.setExpression("Constraints[6]", "Params.sketch8_diameter")
pocket3 = body.newObject("PartDesign::Pocket", "Pocket002")
pocket3.Profile = sketch8
pocket3.setExpression("Length", "Params.pocket3_length")

doc.recompute()
